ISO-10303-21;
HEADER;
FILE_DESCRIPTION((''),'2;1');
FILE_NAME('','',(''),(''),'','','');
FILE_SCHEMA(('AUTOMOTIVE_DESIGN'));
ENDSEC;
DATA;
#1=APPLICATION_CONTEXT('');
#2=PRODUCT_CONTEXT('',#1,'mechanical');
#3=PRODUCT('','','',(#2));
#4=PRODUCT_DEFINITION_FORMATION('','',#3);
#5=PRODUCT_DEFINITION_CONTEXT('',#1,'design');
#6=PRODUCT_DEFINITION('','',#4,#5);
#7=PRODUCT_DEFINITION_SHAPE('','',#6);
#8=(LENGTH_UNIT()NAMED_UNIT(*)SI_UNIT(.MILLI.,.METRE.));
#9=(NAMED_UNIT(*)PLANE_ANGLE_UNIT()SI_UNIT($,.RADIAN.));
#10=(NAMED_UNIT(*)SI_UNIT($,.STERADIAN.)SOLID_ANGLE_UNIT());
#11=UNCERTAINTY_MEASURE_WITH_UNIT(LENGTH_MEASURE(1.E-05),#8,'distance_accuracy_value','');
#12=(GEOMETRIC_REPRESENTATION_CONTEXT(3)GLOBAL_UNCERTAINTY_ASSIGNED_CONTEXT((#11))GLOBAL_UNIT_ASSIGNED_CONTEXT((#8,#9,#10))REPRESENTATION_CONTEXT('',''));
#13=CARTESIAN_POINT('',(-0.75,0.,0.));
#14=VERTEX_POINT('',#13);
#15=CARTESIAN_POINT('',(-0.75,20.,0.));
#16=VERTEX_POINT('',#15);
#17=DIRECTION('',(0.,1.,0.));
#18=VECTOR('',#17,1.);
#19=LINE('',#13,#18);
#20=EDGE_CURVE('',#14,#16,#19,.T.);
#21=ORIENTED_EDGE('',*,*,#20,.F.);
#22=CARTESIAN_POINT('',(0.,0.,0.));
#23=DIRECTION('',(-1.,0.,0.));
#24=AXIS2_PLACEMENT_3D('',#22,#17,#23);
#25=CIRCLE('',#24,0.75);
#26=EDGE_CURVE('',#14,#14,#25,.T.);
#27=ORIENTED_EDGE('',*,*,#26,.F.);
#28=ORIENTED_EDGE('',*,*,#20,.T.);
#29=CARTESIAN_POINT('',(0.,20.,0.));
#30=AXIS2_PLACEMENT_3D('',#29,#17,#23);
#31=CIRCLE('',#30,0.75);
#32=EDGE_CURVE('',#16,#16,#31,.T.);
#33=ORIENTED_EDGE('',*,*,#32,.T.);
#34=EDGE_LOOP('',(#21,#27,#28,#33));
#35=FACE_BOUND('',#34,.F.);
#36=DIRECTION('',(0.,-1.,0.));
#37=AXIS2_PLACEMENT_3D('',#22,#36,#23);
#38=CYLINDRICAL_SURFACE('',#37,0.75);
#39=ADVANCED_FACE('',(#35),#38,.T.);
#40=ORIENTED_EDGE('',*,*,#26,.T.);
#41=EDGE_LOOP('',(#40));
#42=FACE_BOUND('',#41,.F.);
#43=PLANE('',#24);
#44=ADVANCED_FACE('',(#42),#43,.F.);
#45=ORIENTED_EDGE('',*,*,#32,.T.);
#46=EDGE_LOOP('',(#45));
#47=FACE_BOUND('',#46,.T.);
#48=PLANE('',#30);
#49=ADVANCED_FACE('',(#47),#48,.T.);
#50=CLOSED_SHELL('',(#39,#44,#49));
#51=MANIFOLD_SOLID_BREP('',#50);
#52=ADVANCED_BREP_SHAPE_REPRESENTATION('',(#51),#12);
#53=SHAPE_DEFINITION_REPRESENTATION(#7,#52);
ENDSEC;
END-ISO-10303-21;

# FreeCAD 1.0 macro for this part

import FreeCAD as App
import Part
import Sketcher

V = App.Vector
Q = App.Units.Quantity

doc = App.newDocument("Part")
body = doc.addObject("PartDesign::Body", "Body")

# Sketch on XZ plane
sketch1 = body.newObject("Sketcher::SketchObject", "Sketch")
sketch1.AttachmentSupport = (doc.getObject("XZ_Plane"), [""])
sketch1.MapMode = "FlatFace"
sketch1.addGeometry(Part.Circle(V(0, 0, 0), V(0, 0, 1), 0.8), False)
sketch1.addConstraint([
    Sketcher.Constraint("Coincident", 0, 3, -1, 1),
    Sketcher.Constraint("Diameter", 0, Q("1.5 mm")),
])
pad1 = body.newObject("PartDesign::Pad", "Pad")
pad1.Profile = sketch1
pad1.Length = 20
pad1.Reversed = True

doc.recompute()
